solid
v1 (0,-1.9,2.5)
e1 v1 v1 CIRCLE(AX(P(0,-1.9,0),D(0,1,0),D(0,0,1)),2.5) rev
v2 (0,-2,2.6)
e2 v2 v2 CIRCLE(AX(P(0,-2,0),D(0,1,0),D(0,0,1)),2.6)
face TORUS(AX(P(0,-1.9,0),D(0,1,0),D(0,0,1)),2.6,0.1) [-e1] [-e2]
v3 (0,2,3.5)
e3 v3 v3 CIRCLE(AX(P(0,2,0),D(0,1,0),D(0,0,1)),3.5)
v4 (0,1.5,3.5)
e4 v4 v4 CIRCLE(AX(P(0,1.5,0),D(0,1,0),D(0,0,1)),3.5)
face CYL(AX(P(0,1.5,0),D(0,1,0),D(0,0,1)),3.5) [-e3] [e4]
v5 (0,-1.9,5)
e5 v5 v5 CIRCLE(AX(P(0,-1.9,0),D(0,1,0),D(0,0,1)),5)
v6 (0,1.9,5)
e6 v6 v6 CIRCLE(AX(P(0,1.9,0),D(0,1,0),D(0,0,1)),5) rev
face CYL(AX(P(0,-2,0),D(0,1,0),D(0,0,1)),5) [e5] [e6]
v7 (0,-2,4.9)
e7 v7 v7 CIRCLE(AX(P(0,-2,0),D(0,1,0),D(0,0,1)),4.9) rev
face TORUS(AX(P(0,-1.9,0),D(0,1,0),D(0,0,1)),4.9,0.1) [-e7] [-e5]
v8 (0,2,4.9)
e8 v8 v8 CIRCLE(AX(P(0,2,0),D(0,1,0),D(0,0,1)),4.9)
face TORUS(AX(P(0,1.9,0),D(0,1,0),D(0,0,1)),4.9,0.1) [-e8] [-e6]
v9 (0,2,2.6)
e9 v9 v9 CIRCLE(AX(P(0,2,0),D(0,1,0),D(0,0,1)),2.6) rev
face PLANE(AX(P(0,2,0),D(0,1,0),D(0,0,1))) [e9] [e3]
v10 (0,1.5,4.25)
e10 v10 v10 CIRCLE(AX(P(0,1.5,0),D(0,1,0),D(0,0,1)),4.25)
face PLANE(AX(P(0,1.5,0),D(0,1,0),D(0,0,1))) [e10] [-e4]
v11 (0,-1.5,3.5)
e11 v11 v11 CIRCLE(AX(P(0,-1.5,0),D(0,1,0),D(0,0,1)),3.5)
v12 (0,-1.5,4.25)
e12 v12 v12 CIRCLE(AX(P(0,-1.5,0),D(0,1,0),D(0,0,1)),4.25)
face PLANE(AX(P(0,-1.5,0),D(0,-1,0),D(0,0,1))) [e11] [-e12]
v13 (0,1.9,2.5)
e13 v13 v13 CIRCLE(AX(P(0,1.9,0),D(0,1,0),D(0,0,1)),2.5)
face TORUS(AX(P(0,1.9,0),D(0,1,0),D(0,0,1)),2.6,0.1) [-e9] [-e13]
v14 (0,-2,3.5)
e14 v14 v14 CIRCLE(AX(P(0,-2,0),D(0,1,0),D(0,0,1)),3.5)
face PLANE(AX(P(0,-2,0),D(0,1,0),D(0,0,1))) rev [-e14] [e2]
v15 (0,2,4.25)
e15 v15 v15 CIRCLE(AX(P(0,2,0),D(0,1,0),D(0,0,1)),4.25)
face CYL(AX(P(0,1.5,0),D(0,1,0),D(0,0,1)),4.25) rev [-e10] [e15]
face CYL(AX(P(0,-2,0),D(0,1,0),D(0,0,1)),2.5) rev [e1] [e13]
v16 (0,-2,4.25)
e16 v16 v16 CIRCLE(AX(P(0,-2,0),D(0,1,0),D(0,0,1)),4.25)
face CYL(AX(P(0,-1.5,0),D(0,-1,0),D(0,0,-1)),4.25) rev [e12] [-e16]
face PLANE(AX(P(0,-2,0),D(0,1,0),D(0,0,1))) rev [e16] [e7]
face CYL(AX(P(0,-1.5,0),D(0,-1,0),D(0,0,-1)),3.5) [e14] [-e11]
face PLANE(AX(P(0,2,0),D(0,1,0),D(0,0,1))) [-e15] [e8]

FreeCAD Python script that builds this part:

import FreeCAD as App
import Part
import Sketcher

V = App.Vector
Q = App.Units.Quantity


def edges_at(feature, points):
    """Names of the edges that pass closest to the given points."""
    edges = feature.Shape.Edges
    near = lambda p: min(range(len(edges)), key=lambda i: edges[i].distToShape(Part.Vertex(*p))[0])
    return sorted({f"Edge{near(p) + 1}" for p in points})

doc = App.newDocument("Part")
body = doc.addObject("PartDesign::Body", "Body")

# Sketch on XZ plane
sketch1 = body.newObject("Sketcher::SketchObject", "Sketch")
sketch1.AttachmentSupport = (doc.getObject("XZ_Plane"), [""])
sketch1.MapMode = "FlatFace"
sketch1.addGeometry([
    Part.Circle(V(0, 0, 0), V(0, 0, 1), 5),
    Part.Circle(V(0, 0, 0), V(0, 0, 1), 2.5),
], False)
sketch1.addConstraint([
    Sketcher.Constraint("Coincident", 0, 3, -1, 1),
    Sketcher.Constraint("Coincident", 1, 3, -1, 1),
    Sketcher.Constraint("Diameter", 0, Q("10 mm")),
    Sketcher.Constraint("Diameter", 1, Q("5 mm")),
])
pad1 = body.newObject("PartDesign::Pad", "Pad")
pad1.Profile = sketch1
pad1.Type = "TwoLengths"
pad1.Length = 2
pad1.Length2 = 2
pad1.Reversed = True
doc.recompute()

fillet = body.newObject("PartDesign::Fillet", "Fillet")
fillet.Base = (pad1, edges_at(pad1, [
    (0, -2, -5),
    (0, -2, -2.5),
    (0, 2, -5),
    (0, 2, -2.5),
]))
fillet.Radius = 0.1

# Sketch on XZ plane
sketch2 = body.newObject("Sketcher::SketchObject", "Sketch001")
sketch2.AttachmentSupport = (doc.getObject("XZ_Plane"), [""])
sketch2.MapMode = "FlatFace"
sketch2.AttachmentOffset = App.Placement(V(0, 0, -2), App.Rotation())
sketch2.addGeometry([
    Part.Circle(V(0, 0, 0), V(0, 0, 1), 4.2),
    Part.Circle(V(0, 0, 0), V(0, 0, 1), 3.5),
], False)
sketch2.addConstraint([
    Sketcher.Constraint("Coincident", 0, 3, -1, 1),
    Sketcher.Constraint("Coincident", 1, 3, -1, 1),
    Sketcher.Constraint("Diameter", 1, Q("7 mm")),
    Sketcher.Constraint("Diameter", 0, Q("8.5 mm")),
])
pocket1 = body.newObject("PartDesign::Pocket", "Pocket")
pocket1.Profile = sketch2
pocket1.Length = 0.5
pocket1.Reversed = True
doc.recompute()

mirrored = body.newObject("PartDesign::Mirrored", "Mirrored")
mirrored.Originals = [pocket1]
mirrored.MirrorPlane = (doc.getObject("XZ_Plane"), [""])
body.Tip = mirrored

doc.recompute()
